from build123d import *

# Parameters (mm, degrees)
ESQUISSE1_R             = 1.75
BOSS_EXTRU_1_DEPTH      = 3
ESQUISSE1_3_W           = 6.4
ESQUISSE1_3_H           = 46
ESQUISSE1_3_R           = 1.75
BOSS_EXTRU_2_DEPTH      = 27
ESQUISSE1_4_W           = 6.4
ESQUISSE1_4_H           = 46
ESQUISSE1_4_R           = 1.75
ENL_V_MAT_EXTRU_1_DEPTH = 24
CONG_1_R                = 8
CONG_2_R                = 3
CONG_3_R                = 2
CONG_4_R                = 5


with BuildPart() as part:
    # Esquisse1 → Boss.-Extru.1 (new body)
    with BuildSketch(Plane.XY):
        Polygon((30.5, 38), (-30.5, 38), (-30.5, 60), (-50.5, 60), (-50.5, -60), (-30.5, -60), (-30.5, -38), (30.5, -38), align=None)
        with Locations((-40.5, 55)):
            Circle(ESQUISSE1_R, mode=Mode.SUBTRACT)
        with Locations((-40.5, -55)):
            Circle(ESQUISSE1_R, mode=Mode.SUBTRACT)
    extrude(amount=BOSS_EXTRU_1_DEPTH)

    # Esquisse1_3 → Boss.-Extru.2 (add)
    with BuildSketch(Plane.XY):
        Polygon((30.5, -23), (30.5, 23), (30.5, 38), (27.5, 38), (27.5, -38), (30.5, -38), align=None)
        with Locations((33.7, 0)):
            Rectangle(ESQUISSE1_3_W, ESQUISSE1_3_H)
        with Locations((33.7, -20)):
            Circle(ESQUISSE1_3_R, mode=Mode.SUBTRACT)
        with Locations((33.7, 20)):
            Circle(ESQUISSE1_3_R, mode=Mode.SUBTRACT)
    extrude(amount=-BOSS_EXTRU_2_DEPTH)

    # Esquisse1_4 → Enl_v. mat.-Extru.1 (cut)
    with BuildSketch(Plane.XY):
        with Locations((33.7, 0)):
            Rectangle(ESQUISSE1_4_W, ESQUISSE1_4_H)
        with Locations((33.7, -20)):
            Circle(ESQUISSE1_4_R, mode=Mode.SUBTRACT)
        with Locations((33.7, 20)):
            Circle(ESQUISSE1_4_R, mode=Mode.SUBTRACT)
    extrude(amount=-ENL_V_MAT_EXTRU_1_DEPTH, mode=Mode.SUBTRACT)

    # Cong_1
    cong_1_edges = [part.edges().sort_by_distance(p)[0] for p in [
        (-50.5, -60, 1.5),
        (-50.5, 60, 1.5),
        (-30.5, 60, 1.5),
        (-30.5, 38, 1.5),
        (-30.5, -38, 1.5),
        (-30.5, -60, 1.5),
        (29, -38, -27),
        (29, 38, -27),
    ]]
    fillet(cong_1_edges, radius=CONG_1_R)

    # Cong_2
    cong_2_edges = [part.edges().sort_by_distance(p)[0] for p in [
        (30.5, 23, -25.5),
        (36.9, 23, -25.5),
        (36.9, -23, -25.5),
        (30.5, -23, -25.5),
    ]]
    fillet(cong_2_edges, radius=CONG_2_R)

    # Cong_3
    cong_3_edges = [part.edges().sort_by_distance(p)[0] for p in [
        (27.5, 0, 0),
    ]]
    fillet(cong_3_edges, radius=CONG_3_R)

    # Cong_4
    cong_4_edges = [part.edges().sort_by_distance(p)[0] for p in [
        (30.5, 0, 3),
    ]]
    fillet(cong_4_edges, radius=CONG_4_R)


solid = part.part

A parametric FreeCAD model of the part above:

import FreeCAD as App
import Part
import Sketcher


def edges_at(feature, points):
    """Names of the edges that pass closest to the given points."""
    edges = feature.Shape.Edges
    near = lambda p: min(range(len(edges)), key=lambda i: edges[i].distToShape(Part.Vertex(*p))[0])
    return sorted({f"Edge{near(p) + 1}" for p in points})


def add_polygon(sketch, points):
    """Adds a closed chain of lines whose ends are joined by coincident constraints."""
    first, n = sketch.GeometryCount, len(points)
    for a, b in zip(points, points[1:] + points[:1]):
        sketch.addGeometry(Part.LineSegment(App.Vector(*a, 0), App.Vector(*b, 0)), False)
    for i in range(n):
        sketch.addConstraint(Sketcher.Constraint("Coincident", first + i, 2, first + (i + 1) % n, 1))

doc = App.newDocument("Part")
params = doc.addObject("Spreadsheet::Sheet", "Params")
for row, (alias, value) in enumerate([
    ("sketch1_diameter", "3.5 mm"),
    ("sketch1_width", "61 mm"),
    ("sketch1_width2", "20 mm"),
    ("sketch1_height", "22 mm"),
    ("sketch1_height2", "120 mm"),
    ("pad1_length", "3 mm"),
    ("sketch2_diameter", "3.5 mm"),
    ("sketch2_width", "3 mm"),
    ("sketch2_height", "76 mm"),
    ("sketch2_height2", "15 mm"),
    ("sketch2_width2", "6.4 mm"),
    ("pad2_length", "27 mm"),
    ("sketch3_diameter", "3.5 mm"),
    ("sketch3_height", "46 mm"),
    ("sketch3_width", "6.4 mm"),
    ("pocket1_length", "24 mm"),
    ("fillet_radius", "8 mm"),
    ("fillet2_radius", "3 mm"),
    ("fillet3_radius", "2 mm"),
    ("fillet4_radius", "5 mm"),
], start=1):
    params.set(f"A{row}", alias)
    params.set(f"B{row}", "=" + value)
    params.setAlias(f"B{row}", alias)

body = doc.addObject("PartDesign::Body", "Body")

# Sketch on XY plane
sketch1 = doc.addObject("Sketcher::SketchObject", "Sketch")
body.addObject(sketch1)
sketch1.AttachmentSupport = (doc.XY_Plane, [""])
sketch1.MapMode = "FlatFace"
add_polygon(sketch1, [(30.5, 38), (-30.5, 38), (-30.5, 60), (-50.5, 60), (-50.5, -60), (-30.5, -60), (-30.5, -38), (30.5, -38)])  # lines 0-7
sketch1.addGeometry(Part.Circle(App.Vector(-40.5, -55, 0), App.Vector(0, 0, 1), 1.75), False)  # 8
sketch1.addGeometry(Part.Circle(App.Vector(-40.5, 55, 0), App.Vector(0, 0, 1), 1.75), False)  # 9
sketch1.addConstraint([
    Sketcher.Constraint("Horizontal", 0),
    Sketcher.Constraint("Vertical", 1),
    Sketcher.Constraint("Horizontal", 2),
    Sketcher.Constraint("Vertical", 3),
    Sketcher.Constraint("Horizontal", 4),
    Sketcher.Constraint("Vertical", 5),
    Sketcher.Constraint("Horizontal", 6),
    Sketcher.Constraint("Vertical", 7),
    Sketcher.Constraint("Equal", 8, 9),
    Sketcher.Constraint("Symmetric", 0, 2, 6, 2, -1, 1),
    Sketcher.Constraint("Symmetric", 8, 3, 9, 3, -1),
    Sketcher.Constraint("Symmetric", 1, 2, 4, 2, -1),
    Sketcher.Constraint("Diameter", 8, 3.5),
    Sketcher.Constraint("DistanceX", 0, 2, 0, 1, 61.0),
    Sketcher.Constraint("DistanceX", 2, 2, 2, 1, 20.0),
    Sketcher.Constraint("DistanceY", 1, 1, 1, 2, 22.0),
    Sketcher.Constraint("DistanceY", 3, 2, 3, 1, 120.0),
    Sketcher.Constraint("DistanceY", 8, 3, -1, 1, 55.0),
    Sketcher.Constraint("DistanceX", 9, 3, 0, 2, 10.0),
])
sketch1.setExpression("Constraints[20]", "Params.sketch1_diameter")
sketch1.setExpression("Constraints[21]", "Params.sketch1_width")
sketch1.setExpression("Constraints[22]", "Params.sketch1_width2")
sketch1.setExpression("Constraints[23]", "Params.sketch1_height")
sketch1.setExpression("Constraints[24]", "Params.sketch1_height2")
pad1 = doc.addObject("PartDesign::Pad", "Pad")
body.addObject(pad1)
pad1.Profile = sketch1
pad1.setExpression("Length", "Params.pad1_length")

# Sketch on XY plane
sketch2 = doc.addObject("Sketcher::SketchObject", "Sketch001")
body.addObject(sketch2)
sketch2.AttachmentSupport = (doc.XY_Plane, [""])
sketch2.MapMode = "FlatFace"
add_polygon(sketch2, [(30.5, 38), (27.5, 38), (27.5, -38), (30.5, -38), (30.5, -23), (36.9, -23), (36.9, 23), (30.5, 23)])  # lines 0-7
sketch2.addGeometry(Part.Circle(App.Vector(33.7, -20, 0), App.Vector(0, 0, 1), 1.75), False)  # 8
sketch2.addGeometry(Part.Circle(App.Vector(33.7, 20, 0), App.Vector(0, 0, 1), 1.75), False)  # 9
sketch2.addConstraint([
    Sketcher.Constraint("Horizontal", 0),
    Sketcher.Constraint("Vertical", 1),
    Sketcher.Constraint("Horizontal", 2),
    Sketcher.Constraint("Vertical", 3),
    Sketcher.Constraint("Horizontal", 4),
    Sketcher.Constraint("Vertical", 5),
    Sketcher.Constraint("Horizontal", 6),
    Sketcher.Constraint("Vertical", 7),
    Sketcher.Constraint("Equal", 8, 9),
    Sketcher.Constraint("Symmetric", 8, 3, 9, 3, -1),
    Sketcher.Constraint("Symmetric", 3, 2, 6, 2, -1),
    Sketcher.Constraint("Equal", 3, 7),
    Sketcher.Constraint("Diameter", 8, 3.5),
    Sketcher.Constraint("DistanceX", 0, 2, 0, 1, 3.0),
    Sketcher.Constraint("DistanceY", 1, 2, 1, 1, 76.0),
    Sketcher.Constraint("DistanceY", 3, 1, 3, 2, 15.0),
    Sketcher.Constraint("DistanceX", 4, 1, 4, 2, 6.4),
    Sketcher.Constraint("DistanceY", 8, 3, -1, 1, 20.0),
    Sketcher.Constraint("DistanceX", -1, 1, 8, 3, 33.7),
    Sketcher.Constraint("DistanceX", -1, 1, 0, 2, 27.5),
])
sketch2.setExpression("Constraints[20]", "Params.sketch2_diameter")
sketch2.setExpression("Constraints[21]", "Params.sketch2_width")
sketch2.setExpression("Constraints[22]", "Params.sketch2_height")
sketch2.setExpression("Constraints[23]", "Params.sketch2_height2")
sketch2.setExpression("Constraints[24]", "Params.sketch2_width2")
pad2 = doc.addObject("PartDesign::Pad", "Pad001")
body.addObject(pad2)
pad2.Profile = sketch2
pad2.setExpression("Length", "Params.pad2_length")
pad2.Reversed = True

# Sketch on XY plane
sketch3 = doc.addObject("Sketcher::SketchObject", "Sketch002")
body.addObject(sketch3)
sketch3.AttachmentSupport = (doc.XY_Plane, [""])
sketch3.MapMode = "FlatFace"
add_polygon(sketch3, [(30.5, 23), (30.5, -23), (36.9, -23), (36.9, 23)])  # lines 0-3
sketch3.addGeometry(Part.Circle(App.Vector(33.7, -20, 0), App.Vector(0, 0, 1), 1.75), False)  # 4
sketch3.addGeometry(Part.Circle(App.Vector(33.7, 20, 0), App.Vector(0, 0, 1), 1.75), False)  # 5
sketch3.addConstraint([
    Sketcher.Constraint("Vertical", 0),
    Sketcher.Constraint("Horizontal", 1),
    Sketcher.Constraint("Vertical", 2),
    Sketcher.Constraint("Horizontal", 3),
    Sketcher.Constraint("Equal", 4, 5),
    Sketcher.Constraint("Symmetric", 4, 3, 5, 3, -1),
    Sketcher.Constraint("Diameter", 4, 3.5),
    Sketcher.Constraint("DistanceY", 0, 2, 0, 1, 46.0),
    Sketcher.Constraint("DistanceX", 1, 1, 1, 2, 6.4),
    Sketcher.Constraint("DistanceY", 4, 3, -1, 1, 20.0),
    Sketcher.Constraint("DistanceY", 0, 2, -1, 1, 23.0),
    Sketcher.Constraint("DistanceX", -1, 1, 4, 3, 33.7),
    Sketcher.Constraint("DistanceX", -1, 1, 0, 2, 30.5),
])
sketch3.setExpression("Constraints[10]", "Params.sketch3_diameter")
sketch3.setExpression("Constraints[11]", "Params.sketch3_height")
sketch3.setExpression("Constraints[12]", "Params.sketch3_width")
pocket1 = doc.addObject("PartDesign::Pocket", "Pocket")
body.addObject(pocket1)
pocket1.Profile = sketch3
pocket1.setExpression("Length", "Params.pocket1_length")
doc.recompute()

fillet = doc.addObject("PartDesign::Fillet", "Fillet")
body.addObject(fillet)
fillet.Base = (pocket1, edges_at(pocket1, [
    (-50.5, -60, 1.5),
    (-50.5, 60, 1.5),
    (-30.5, 60, 1.5),
    (-30.5, 38, 1.5),
    (-30.5, -38, 1.5),
    (-30.5, -60, 1.5),
    (29, -38, -27),
    (29, 38, -27),
]))
fillet.setExpression("Radius", "Params.fillet_radius")
doc.recompute()

fillet2 = doc.addObject("PartDesign::Fillet", "Fillet001")
body.addObject(fillet2)
fillet2.Base = (fillet, edges_at(fillet, [
    (30.5, 23, -25.5),
    (36.9, 23, -25.5),
    (36.9, -23, -25.5),
    (30.5, -23, -25.5),
]))
fillet2.setExpression("Radius", "Params.fillet2_radius")
doc.recompute()

fillet3 = doc.addObject("PartDesign::Fillet", "Fillet002")
body.addObject(fillet3)
fillet3.Base = (fillet2, edges_at(fillet2, [(27.5, 0, 0)]))
fillet3.setExpression("Radius", "Params.fillet3_radius")
doc.recompute()

fillet4 = doc.addObject("PartDesign::Fillet", "Fillet003")
body.addObject(fillet4)
fillet4.Base = (fillet3, edges_at(fillet3, [(30.5, 0, 3)]))
fillet4.setExpression("Radius", "Params.fillet4_radius")

doc.recompute()
